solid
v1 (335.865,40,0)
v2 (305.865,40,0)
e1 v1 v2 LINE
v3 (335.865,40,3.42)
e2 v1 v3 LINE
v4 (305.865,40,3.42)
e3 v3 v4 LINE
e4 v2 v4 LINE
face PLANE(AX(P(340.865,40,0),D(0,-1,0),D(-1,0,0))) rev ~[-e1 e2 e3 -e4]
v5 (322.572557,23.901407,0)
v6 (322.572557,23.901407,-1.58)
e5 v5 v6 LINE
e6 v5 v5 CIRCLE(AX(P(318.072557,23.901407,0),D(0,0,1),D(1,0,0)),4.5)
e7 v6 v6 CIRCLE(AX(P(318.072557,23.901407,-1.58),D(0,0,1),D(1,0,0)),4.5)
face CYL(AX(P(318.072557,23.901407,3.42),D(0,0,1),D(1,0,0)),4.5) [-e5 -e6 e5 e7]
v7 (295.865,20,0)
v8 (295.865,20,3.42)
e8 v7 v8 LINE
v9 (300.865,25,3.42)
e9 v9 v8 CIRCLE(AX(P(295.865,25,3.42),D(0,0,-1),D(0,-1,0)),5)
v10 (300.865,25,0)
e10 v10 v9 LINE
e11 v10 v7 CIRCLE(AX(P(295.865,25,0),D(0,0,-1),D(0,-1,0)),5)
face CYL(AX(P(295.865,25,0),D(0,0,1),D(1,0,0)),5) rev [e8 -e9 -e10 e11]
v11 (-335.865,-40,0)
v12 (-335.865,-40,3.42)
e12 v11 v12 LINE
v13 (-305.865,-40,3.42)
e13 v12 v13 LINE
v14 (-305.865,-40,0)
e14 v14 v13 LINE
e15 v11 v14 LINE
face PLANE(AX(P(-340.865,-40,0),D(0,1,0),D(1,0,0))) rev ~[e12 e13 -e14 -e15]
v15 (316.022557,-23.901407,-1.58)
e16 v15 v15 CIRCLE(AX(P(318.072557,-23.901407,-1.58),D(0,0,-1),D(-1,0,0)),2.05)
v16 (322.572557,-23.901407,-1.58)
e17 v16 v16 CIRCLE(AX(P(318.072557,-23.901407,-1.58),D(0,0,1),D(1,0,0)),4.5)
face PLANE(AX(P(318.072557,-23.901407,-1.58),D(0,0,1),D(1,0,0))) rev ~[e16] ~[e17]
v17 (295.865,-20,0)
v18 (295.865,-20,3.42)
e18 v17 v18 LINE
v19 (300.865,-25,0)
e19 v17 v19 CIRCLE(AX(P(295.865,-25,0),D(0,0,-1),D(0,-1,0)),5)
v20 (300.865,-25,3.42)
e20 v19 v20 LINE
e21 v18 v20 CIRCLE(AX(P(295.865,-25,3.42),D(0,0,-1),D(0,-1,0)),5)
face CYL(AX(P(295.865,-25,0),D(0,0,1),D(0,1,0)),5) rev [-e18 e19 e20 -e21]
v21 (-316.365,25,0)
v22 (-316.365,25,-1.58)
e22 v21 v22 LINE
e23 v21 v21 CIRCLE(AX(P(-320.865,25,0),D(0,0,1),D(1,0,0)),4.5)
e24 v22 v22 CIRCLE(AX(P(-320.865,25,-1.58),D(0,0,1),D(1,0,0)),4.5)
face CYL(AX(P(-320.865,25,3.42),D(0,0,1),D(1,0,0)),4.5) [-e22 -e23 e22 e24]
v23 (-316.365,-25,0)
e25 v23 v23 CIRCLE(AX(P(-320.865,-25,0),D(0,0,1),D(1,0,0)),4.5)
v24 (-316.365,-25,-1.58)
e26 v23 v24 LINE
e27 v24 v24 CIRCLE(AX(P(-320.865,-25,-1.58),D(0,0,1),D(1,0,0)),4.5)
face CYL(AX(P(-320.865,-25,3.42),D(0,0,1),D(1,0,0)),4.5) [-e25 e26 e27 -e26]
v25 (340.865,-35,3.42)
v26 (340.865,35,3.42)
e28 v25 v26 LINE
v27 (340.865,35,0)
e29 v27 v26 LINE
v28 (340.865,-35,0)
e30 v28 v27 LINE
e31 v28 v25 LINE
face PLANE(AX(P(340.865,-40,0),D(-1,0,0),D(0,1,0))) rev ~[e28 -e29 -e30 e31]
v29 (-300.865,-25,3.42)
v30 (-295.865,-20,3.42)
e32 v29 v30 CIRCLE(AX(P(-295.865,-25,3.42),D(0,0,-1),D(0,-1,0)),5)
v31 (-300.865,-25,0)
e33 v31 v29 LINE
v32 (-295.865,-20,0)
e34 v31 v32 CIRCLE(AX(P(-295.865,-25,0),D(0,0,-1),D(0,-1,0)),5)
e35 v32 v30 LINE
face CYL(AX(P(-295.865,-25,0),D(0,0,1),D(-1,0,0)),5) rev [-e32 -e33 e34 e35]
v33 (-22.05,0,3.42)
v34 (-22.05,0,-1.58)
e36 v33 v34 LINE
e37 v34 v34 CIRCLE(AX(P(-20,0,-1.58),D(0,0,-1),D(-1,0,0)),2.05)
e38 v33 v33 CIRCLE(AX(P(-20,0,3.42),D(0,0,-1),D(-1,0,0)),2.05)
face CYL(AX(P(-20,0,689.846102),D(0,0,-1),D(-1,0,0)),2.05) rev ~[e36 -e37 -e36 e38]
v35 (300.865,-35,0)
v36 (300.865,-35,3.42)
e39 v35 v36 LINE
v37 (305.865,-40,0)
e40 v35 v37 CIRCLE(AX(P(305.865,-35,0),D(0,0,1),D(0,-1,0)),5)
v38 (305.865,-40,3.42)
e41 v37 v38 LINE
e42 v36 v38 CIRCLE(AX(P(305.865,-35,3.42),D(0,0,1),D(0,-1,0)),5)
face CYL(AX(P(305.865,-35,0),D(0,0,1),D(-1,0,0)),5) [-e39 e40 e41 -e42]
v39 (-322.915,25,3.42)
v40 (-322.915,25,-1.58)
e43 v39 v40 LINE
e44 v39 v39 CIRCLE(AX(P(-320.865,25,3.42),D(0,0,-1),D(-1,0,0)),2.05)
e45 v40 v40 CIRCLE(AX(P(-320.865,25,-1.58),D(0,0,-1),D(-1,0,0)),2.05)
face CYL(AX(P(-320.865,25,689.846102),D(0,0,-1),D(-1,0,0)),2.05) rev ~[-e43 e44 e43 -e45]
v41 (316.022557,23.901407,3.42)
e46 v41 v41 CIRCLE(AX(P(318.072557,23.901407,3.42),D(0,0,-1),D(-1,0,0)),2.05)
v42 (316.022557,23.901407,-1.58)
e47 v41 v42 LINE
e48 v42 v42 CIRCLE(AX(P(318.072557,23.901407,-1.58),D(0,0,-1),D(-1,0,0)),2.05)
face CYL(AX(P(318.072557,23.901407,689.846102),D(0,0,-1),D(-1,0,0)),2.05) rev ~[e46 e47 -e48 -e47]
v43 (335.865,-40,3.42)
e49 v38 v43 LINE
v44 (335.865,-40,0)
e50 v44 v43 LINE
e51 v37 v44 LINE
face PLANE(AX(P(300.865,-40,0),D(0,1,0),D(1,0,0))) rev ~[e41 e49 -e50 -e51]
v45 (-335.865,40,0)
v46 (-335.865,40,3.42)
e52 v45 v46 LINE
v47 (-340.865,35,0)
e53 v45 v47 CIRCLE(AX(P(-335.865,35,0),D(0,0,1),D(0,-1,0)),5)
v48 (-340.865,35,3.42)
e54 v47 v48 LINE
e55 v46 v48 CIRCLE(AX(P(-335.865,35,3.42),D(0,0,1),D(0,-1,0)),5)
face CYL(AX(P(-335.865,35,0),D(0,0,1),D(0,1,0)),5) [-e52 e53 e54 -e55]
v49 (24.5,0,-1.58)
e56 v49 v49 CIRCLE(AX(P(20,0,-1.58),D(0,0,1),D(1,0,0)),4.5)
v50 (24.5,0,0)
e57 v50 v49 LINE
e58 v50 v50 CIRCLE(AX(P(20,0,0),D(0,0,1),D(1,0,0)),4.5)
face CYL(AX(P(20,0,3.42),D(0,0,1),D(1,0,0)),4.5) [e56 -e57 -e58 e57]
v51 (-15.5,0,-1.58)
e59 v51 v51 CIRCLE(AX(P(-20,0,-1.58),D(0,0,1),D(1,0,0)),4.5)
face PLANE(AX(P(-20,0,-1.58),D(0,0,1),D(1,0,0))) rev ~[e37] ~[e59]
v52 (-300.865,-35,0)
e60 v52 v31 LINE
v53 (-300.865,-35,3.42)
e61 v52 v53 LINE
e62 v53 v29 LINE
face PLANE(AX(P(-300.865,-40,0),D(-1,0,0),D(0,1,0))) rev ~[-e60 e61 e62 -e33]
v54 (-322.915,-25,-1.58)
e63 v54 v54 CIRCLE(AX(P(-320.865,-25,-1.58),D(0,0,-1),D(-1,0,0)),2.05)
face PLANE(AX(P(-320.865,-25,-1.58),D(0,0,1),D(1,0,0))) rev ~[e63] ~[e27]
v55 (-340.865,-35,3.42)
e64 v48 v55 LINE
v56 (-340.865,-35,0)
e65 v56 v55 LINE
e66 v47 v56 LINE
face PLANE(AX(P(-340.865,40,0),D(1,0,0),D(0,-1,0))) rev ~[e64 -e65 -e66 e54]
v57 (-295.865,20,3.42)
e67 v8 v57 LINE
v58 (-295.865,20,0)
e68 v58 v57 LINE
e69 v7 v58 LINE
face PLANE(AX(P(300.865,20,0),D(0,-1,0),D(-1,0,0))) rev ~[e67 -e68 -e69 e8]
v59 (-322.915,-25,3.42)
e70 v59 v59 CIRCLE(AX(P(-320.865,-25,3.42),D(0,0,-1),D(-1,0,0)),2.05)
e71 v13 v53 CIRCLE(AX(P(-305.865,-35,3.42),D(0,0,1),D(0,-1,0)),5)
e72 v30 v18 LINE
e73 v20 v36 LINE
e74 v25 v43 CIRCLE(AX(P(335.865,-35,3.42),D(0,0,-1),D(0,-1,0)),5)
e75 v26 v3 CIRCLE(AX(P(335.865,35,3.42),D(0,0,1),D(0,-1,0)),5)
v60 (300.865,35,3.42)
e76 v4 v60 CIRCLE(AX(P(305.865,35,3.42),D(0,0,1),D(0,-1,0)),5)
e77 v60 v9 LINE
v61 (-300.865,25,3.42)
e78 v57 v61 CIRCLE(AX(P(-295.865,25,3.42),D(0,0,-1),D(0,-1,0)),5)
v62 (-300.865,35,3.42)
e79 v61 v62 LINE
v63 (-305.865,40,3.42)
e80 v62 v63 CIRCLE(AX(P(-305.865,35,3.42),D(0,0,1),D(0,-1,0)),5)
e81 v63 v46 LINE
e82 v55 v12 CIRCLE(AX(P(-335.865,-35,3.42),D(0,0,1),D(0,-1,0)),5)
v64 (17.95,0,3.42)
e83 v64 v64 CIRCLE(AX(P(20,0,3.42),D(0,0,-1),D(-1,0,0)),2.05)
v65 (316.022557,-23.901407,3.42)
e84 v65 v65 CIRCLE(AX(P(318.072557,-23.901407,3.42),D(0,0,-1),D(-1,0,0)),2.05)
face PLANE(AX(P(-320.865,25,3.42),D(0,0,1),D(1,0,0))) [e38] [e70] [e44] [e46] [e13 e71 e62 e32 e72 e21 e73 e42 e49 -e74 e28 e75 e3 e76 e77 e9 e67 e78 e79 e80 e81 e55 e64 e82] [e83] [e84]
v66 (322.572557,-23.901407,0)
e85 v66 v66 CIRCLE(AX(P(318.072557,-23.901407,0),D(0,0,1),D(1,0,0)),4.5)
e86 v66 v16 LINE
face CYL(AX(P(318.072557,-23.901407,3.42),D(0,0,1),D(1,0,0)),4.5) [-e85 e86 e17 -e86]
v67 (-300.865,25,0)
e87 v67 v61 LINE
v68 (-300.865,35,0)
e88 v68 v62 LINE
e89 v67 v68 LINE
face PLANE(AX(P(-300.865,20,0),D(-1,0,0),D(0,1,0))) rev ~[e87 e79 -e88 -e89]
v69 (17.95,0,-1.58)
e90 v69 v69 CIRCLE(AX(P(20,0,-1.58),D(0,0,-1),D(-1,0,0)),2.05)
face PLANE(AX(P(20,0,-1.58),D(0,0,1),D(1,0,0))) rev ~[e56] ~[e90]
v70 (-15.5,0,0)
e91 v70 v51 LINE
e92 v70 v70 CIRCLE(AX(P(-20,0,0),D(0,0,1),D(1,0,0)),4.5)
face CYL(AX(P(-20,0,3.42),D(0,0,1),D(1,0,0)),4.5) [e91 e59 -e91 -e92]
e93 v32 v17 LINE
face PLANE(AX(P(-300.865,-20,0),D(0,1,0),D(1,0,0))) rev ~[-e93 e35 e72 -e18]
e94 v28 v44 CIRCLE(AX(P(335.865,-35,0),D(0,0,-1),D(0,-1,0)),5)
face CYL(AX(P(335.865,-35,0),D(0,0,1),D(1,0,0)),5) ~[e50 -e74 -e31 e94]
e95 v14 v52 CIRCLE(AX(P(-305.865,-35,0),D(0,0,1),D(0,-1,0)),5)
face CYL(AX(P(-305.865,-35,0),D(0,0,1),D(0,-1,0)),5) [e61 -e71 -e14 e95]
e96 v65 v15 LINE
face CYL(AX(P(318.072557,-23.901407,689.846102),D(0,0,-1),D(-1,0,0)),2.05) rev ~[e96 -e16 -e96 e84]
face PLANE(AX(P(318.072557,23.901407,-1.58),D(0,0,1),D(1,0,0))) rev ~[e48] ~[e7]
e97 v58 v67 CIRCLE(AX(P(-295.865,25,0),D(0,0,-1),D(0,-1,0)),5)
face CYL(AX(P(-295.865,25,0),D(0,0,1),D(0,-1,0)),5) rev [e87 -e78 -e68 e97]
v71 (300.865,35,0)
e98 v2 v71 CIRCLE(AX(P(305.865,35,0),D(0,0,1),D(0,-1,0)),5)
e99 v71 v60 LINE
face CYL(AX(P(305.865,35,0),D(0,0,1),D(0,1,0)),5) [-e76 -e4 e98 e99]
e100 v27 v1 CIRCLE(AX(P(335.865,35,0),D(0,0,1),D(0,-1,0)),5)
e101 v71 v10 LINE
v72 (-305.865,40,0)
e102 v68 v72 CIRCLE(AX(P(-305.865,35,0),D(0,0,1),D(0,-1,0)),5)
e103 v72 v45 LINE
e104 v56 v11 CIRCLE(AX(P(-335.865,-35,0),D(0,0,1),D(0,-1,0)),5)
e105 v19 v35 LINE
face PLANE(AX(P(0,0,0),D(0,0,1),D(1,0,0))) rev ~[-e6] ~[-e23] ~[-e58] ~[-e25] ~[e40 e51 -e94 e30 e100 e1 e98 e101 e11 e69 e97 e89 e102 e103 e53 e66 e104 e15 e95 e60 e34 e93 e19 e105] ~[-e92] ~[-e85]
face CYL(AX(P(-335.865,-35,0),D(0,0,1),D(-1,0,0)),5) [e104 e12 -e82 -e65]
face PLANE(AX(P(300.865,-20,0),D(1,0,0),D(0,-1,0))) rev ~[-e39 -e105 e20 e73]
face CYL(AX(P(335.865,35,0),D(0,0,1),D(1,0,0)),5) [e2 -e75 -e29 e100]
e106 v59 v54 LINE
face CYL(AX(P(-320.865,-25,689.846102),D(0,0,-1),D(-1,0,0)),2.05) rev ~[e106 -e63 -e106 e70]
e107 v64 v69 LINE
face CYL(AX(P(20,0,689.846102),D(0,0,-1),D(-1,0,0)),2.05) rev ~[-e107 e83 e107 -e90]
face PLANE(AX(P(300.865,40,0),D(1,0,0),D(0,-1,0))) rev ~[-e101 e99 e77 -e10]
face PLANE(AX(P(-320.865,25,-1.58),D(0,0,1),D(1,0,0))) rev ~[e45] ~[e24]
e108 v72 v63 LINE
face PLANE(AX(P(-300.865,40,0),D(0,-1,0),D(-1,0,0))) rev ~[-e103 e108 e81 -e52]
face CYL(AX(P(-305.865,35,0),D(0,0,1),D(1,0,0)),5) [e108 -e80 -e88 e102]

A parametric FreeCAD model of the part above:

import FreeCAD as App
import Part
import Sketcher

V = App.Vector


def edges_at(feature, points):
    """Names of the edges that pass closest to the given points."""
    edges = feature.Shape.Edges
    near = lambda p: min(range(len(edges)), key=lambda i: edges[i].distToShape(Part.Vertex(*p))[0])
    return sorted({f"Edge{near(p) + 1}" for p in points})

doc = App.newDocument("Part")
params = doc.addObject("Spreadsheet::Sheet", "Params")
for row, (alias, value) in enumerate([
    ("sketch1_width", "40 mm"),
    ("sketch1_height", "80 mm"),
    ("sketch1_height2", "20 mm"),
    ("sketch1_width2", "601.73 mm"),
    ("pad1_length", "3.42 mm"),
    ("fillet_radius", "5 mm"),
    ("sketch2_diameter", "9 mm"),
    ("pad2_length", "5 mm"),
    ("sketch3_diameter", "4.1 mm"),
    ("hole_diameter", "4.1 mm"),
], start=1):
    params.set(f"A{row}", alias)
    params.set(f"B{row}", "=" + value)
    params.setAlias(f"B{row}", alias)

body = doc.addObject("PartDesign::Body", "Body")

sketch1 = body.newObject("Sketcher::SketchObject", "Sketch")
sketch1.AttachmentSupport = (doc.getObject("XY_Plane"), [""])
sketch1.MapMode = "FlatFace"
sketch1.addGeometry([
    Part.LineSegment(V(341, -40, 0), V(341, 40, 0)),
    Part.LineSegment(V(341, 40, 0), V(301, 40, 0)),
    Part.LineSegment(V(301, 40, 0), V(301, 20, 0)),
    Part.LineSegment(V(301, 20, 0), V(-301, 20, 0)),
    Part.LineSegment(V(-301, 20, 0), V(-301, 40, 0)),
    Part.LineSegment(V(-301, 40, 0), V(-341, 40, 0)),
    Part.LineSegment(V(-341, 40, 0), V(-341, -40, 0)),
    Part.LineSegment(V(-341, -40, 0), V(-301, -40, 0)),
    Part.LineSegment(V(-301, -40, 0), V(-301, -20, 0)),
    Part.LineSegment(V(-301, -20, 0), V(301, -20, 0)),
    Part.LineSegment(V(301, -20, 0), V(301, -40, 0)),
    Part.LineSegment(V(301, -40, 0), V(341, -40, 0)),
], False)
sketch1.addConstraint([
    Sketcher.Constraint("Coincident", 0, 2, 1, 1),
    Sketcher.Constraint("Coincident", 1, 2, 2, 1),
    Sketcher.Constraint("Coincident", 2, 2, 3, 1),
    Sketcher.Constraint("Coincident", 3, 2, 4, 1),
    Sketcher.Constraint("Coincident", 4, 2, 5, 1),
    Sketcher.Constraint("Coincident", 5, 2, 6, 1),
    Sketcher.Constraint("Coincident", 6, 2, 7, 1),
    Sketcher.Constraint("Coincident", 7, 2, 8, 1),
    Sketcher.Constraint("Coincident", 8, 2, 9, 1),
    Sketcher.Constraint("Coincident", 9, 2, 10, 1),
    Sketcher.Constraint("Coincident", 10, 2, 11, 1),
    Sketcher.Constraint("Coincident", 11, 2, 0, 1),
    Sketcher.Constraint("Vertical", 0),
    Sketcher.Constraint("Horizontal", 1),
    Sketcher.Constraint("Vertical", 2),
    Sketcher.Constraint("Horizontal", 3),
    Sketcher.Constraint("Vertical", 4),
    Sketcher.Constraint("Horizontal", 5),
    Sketcher.Constraint("Vertical", 6),
    Sketcher.Constraint("Horizontal", 7),
    Sketcher.Constraint("Vertical", 8),
    Sketcher.Constraint("Horizontal", 9),
    Sketcher.Constraint("Vertical", 10),
    Sketcher.Constraint("Horizontal", 11),
    Sketcher.Constraint("Symmetric", 0, 2, 6, 2, -1, 1),
    Sketcher.Constraint("Symmetric", 2, 2, 8, 2, -1, 1),
    Sketcher.Constraint("Symmetric", 4, 2, 10, 2, -1, 1),
    Sketcher.Constraint("Symmetric", 1, 2, 4, 2, -2),
    Sketcher.Constraint("DistanceX", 1, 2, 1, 1, 40.0),
    Sketcher.Constraint("DistanceY", 0, 1, 0, 2, 80.0),
    Sketcher.Constraint("DistanceY", 2, 2, 2, 1, 20.0),
    Sketcher.Constraint("DistanceX", 3, 2, 3, 1, 601.73),
])
sketch1.setExpression("Constraints[28]", "Params.sketch1_width")
sketch1.setExpression("Constraints[29]", "Params.sketch1_height")
sketch1.setExpression("Constraints[30]", "Params.sketch1_height2")
sketch1.setExpression("Constraints[31]", "Params.sketch1_width2")
pad1 = body.newObject("PartDesign::Pad", "Pad")
pad1.Profile = sketch1
pad1.setExpression("Length", "Params.pad1_length")
doc.recompute()

fillet = body.newObject("PartDesign::Fillet", "Fillet")
fillet.Base = (pad1, edges_at(pad1, [
    (-340.865, 40, 1.71),
    (-340.865, -40, 1.71),
    (-300.865, 40, 1.71),
    (-300.865, 20, 1.71),
    (-300.865, -20, 1.71),
    (-300.865, -40, 1.71),
    (300.865, 20, 1.71),
    (300.865, 40, 1.71),
    (340.865, 40, 1.71),
    (300.865, -40, 1.71),
    (300.865, -20, 1.71),
    (340.865, -40, 1.71),
]))
fillet.setExpression("Radius", "Params.fillet_radius")

sketch2 = body.newObject("Sketcher::SketchObject", "Sketch001")
sketch2.AttachmentSupport = (doc.getObject("XY_Plane"), [""])
sketch2.MapMode = "FlatFace"
sketch2.AttachmentOffset = App.Placement(V(0, 0, 3.42), App.Rotation())
sketch2.addGeometry([
    Part.Circle(V(-320.9, 25, 0), V(0, 0, 1), 4.5),
    Part.Circle(V(-320.9, -25, 0), V(0, 0, 1), 4.5),
    Part.Circle(V(-20, 0, 0), V(0, 0, 1), 4.5),
    Part.Circle(V(20, 0, 0), V(0, 0, 1), 4.5),
    Part.Circle(V(318.1, 23.9, 0), V(0, 0, 1), 4.5),
    Part.Circle(V(318.1, -23.9, 0), V(0, 0, 1), 4.5),
], False)
sketch2.addConstraint([
    Sketcher.Constraint("Equal", 0, 1),
    Sketcher.Constraint("Equal", 1, 2),
    Sketcher.Constraint("Equal", 2, 3),
    Sketcher.Constraint("Equal", 3, 4),
    Sketcher.Constraint("Equal", 4, 5),
    Sketcher.Constraint("Symmetric", 2, 3, 3, 3, -1, 1),
    Sketcher.Constraint("Symmetric", 0, 3, 1, 3, -1),
    Sketcher.Constraint("Symmetric", 4, 3, 5, 3, -1),
    Sketcher.Constraint("PointOnObject", 2, 3, -1),
    Sketcher.Constraint("Diameter", 0, 9.0),
    Sketcher.Constraint("DistanceY", -1, 1, 0, 3, 25.0),
    Sketcher.Constraint("DistanceX", 2, 3, -1, 1, 20.0),
    Sketcher.Constraint("DistanceX", 0, 3, -1, 1, 320.865),
    Sketcher.Constraint("DistanceX", -1, 1, 4, 3, 318.072557),
    Sketcher.Constraint("DistanceY", -1, 1, 4, 3, 23.901407),
])
sketch2.setExpression("Constraints[9]", "Params.sketch2_diameter")
pad2 = body.newObject("PartDesign::Pad", "Pad001")
pad2.Profile = sketch2
pad2.setExpression("Length", "Params.pad2_length")
pad2.Reversed = True

sketch3 = body.newObject("Sketcher::SketchObject", "Sketch002")
sketch3.AttachmentSupport = (doc.getObject("XY_Plane"), [""])
sketch3.MapMode = "FlatFace"
sketch3.AttachmentOffset = App.Placement(V(0, 0, 3.42), App.Rotation())
sketch3.addGeometry([
    Part.Circle(V(-320.9, -25, 0), V(0, 0, 1), 2),
    Part.Circle(V(-20, 0, 0), V(0, 0, 1), 2),
    Part.Circle(V(20, 0, 0), V(0, 0, 1), 2),
    Part.Circle(V(318.1, 23.9, 0), V(0, 0, 1), 2),
    Part.Circle(V(318.1, -23.9, 0), V(0, 0, 1), 2),
    Part.Circle(V(-320.9, 25, 0), V(0, 0, 1), 2),
], False)
sketch3.addConstraint([
    Sketcher.Constraint("Equal", 0, 1),
    Sketcher.Constraint("Equal", 1, 2),
    Sketcher.Constraint("Equal", 2, 3),
    Sketcher.Constraint("Equal", 3, 4),
    Sketcher.Constraint("Equal", 4, 5),
    Sketcher.Constraint("Symmetric", 1, 3, 2, 3, -1, 1),
    Sketcher.Constraint("Symmetric", 3, 3, 4, 3, -1),
    Sketcher.Constraint("Symmetric", 0, 3, 5, 3, -1),
    Sketcher.Constraint("PointOnObject", 1, 3, -1),
    Sketcher.Constraint("Diameter", 0, 4.1),
    Sketcher.Constraint("DistanceY", 0, 3, -1, 1, 25.0),
    Sketcher.Constraint("DistanceX", 1, 3, -1, 1, 20.0),
    Sketcher.Constraint("DistanceX", 0, 3, -1, 1, 320.865),
    Sketcher.Constraint("DistanceX", -1, 1, 3, 3, 318.072557),
    Sketcher.Constraint("DistanceY", -1, 1, 3, 3, 23.901407),
])
sketch3.setExpression("Constraints[9]", "Params.sketch3_diameter")
doc.recompute()
hole = body.newObject("PartDesign::Hole", "Hole")
hole.Profile = sketch3
hole.ThreadType = "None"
hole.setExpression("Diameter", "Params.hole_diameter")
hole.DepthType = "ThroughAll"

doc.recompute()
